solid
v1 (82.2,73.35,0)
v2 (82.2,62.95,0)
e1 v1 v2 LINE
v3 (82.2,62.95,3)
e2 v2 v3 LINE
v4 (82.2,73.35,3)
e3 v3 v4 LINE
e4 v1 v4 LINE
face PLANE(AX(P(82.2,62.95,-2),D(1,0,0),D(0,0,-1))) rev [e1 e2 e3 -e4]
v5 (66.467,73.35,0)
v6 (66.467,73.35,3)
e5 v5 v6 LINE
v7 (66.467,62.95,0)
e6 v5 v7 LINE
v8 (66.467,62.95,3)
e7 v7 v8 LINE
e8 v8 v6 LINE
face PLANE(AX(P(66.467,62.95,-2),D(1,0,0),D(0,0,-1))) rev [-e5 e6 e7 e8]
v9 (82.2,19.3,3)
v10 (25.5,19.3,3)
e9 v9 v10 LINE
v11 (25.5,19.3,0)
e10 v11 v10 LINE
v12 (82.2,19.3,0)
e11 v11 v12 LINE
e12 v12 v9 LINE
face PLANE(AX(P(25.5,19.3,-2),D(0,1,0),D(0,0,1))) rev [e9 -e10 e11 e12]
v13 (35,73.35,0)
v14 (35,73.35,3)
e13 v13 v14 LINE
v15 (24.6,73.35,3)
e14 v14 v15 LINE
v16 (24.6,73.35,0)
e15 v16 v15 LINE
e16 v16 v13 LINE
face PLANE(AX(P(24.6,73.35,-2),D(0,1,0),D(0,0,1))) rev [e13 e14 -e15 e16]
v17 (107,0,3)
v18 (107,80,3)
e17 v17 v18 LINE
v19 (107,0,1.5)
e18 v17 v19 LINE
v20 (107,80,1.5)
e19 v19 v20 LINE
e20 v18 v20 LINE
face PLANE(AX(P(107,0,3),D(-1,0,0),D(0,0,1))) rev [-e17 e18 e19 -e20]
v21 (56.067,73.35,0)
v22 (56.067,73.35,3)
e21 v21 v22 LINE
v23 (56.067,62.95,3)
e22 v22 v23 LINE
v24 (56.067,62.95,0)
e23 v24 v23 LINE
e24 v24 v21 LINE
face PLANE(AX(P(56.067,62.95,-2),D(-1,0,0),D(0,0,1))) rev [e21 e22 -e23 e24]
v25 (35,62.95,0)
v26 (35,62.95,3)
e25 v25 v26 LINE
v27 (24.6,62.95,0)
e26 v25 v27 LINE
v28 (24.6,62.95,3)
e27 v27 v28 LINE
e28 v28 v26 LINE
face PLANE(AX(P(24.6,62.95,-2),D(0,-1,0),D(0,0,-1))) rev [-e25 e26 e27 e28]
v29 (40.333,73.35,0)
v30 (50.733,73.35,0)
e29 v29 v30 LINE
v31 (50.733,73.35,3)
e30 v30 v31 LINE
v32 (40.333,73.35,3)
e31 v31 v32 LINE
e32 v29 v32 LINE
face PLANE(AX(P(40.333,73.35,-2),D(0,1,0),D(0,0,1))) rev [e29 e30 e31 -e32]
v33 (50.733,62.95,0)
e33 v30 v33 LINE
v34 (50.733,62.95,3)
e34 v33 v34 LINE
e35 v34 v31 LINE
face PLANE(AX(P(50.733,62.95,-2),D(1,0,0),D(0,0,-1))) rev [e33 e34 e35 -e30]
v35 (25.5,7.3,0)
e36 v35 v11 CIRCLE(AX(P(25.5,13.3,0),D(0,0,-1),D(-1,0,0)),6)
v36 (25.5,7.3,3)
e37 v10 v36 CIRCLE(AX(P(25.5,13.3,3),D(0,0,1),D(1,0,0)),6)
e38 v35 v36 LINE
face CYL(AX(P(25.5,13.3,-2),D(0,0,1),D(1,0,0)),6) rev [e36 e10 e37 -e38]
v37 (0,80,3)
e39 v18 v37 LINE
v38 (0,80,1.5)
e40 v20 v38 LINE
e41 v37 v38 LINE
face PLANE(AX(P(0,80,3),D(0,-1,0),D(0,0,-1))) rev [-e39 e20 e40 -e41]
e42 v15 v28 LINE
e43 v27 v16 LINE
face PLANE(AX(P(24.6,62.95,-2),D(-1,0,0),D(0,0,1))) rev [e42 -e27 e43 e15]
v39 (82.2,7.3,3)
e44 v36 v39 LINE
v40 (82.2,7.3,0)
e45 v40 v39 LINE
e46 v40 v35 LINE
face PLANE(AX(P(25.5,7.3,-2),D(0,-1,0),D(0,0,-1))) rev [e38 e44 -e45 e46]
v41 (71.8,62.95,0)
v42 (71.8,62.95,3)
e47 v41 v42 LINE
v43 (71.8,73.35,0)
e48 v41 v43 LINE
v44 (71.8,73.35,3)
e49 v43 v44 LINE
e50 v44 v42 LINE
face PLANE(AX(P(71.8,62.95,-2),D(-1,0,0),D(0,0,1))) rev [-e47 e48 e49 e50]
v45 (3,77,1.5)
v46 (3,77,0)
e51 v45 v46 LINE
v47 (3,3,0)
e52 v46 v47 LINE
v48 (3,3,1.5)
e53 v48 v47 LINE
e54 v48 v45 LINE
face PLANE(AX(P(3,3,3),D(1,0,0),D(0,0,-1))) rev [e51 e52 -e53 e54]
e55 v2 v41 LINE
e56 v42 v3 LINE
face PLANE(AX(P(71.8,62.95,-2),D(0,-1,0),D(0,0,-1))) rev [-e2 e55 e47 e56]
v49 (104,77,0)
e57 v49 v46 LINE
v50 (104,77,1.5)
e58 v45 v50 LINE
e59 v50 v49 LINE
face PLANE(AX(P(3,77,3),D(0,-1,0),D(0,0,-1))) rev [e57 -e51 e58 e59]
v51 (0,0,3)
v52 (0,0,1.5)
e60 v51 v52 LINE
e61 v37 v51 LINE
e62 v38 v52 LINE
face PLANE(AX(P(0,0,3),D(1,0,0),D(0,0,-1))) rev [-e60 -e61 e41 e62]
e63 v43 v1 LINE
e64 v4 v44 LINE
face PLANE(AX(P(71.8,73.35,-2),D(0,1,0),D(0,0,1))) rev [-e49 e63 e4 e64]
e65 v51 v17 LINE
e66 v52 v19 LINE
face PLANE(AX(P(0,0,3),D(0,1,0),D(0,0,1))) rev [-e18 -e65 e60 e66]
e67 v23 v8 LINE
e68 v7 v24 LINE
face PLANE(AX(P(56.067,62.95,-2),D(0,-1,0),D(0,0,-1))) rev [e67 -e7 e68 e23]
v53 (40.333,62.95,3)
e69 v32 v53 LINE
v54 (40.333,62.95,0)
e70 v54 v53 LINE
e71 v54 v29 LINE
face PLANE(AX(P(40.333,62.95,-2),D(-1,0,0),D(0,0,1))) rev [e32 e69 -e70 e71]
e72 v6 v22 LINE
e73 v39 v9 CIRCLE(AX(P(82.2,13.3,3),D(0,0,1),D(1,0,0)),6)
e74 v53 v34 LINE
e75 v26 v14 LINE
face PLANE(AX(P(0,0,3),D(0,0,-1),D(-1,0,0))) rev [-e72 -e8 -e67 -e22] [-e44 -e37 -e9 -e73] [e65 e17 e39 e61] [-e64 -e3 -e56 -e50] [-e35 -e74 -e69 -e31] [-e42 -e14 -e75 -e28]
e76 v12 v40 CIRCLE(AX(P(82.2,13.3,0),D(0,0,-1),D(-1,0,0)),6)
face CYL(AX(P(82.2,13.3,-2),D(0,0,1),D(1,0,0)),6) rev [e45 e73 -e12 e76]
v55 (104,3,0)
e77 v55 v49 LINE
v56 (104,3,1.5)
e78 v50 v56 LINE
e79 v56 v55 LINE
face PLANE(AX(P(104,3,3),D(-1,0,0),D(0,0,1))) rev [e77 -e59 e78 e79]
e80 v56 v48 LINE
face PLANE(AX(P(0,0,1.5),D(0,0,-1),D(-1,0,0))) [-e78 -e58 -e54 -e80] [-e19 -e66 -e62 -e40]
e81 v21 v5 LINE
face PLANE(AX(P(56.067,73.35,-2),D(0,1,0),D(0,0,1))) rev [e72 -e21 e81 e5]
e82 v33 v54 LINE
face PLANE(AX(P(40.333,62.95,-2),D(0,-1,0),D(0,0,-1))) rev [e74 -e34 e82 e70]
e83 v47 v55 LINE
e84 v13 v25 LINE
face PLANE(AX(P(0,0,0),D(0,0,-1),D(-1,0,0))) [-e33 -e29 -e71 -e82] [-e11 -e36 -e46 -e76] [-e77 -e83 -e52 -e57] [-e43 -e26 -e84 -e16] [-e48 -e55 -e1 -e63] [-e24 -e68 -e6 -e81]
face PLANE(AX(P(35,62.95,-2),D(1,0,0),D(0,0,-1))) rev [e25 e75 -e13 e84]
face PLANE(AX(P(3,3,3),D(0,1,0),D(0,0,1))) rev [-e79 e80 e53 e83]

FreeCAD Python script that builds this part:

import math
import FreeCAD as App
import Part
import Sketcher
Q = App.Units.Quantity

doc = App.newDocument("Part")
body = doc.addObject("PartDesign::Body", "Body")

sketch1 = body.newObject("Sketcher::SketchObject", "Sketch")
sketch1.AttachmentSupport = (doc.getObject("XY_Plane"), [""])
sketch1.MapMode = "FlatFace"
sketch1.addGeometry([
    Part.LineSegment(App.Vector(3, 77, 0), App.Vector(3, 3, 0)),
    Part.LineSegment(App.Vector(3, 3, 0), App.Vector(104, 3, 0)),
    Part.LineSegment(App.Vector(104, 3, 0), App.Vector(104, 77, 0)),
    Part.LineSegment(App.Vector(104, 77, 0), App.Vector(3, 77, 0)),
], False)
sketch1.addConstraint([
    Sketcher.Constraint("Coincident", 0, 2, 1, 1),
    Sketcher.Constraint("Coincident", 1, 2, 2, 1),
    Sketcher.Constraint("Coincident", 2, 2, 3, 1),
    Sketcher.Constraint("Coincident", 3, 2, 0, 1),
    Sketcher.Constraint("Vertical", 0),
    Sketcher.Constraint("Horizontal", 1),
    Sketcher.Constraint("Vertical", 2),
    Sketcher.Constraint("Horizontal", 3),
    Sketcher.Constraint("DistanceX", 1, 1, 1, 2, Q("101 mm")),
    Sketcher.Constraint("DistanceY", 0, 2, 0, 1, Q("74 mm")),
    Sketcher.Constraint("DistanceX", -1, 1, 0, 2, Q("3 mm")),
    Sketcher.Constraint("DistanceY", -1, 1, 0, 2, Q("3 mm")),
])
pad1 = body.newObject("PartDesign::Pad", "Pad")
pad1.Profile = sketch1
pad1.Length = 3

sketch2 = body.newObject("Sketcher::SketchObject", "Sketch001")
sketch2.AttachmentSupport = (doc.getObject("XY_Plane"), [""])
sketch2.MapMode = "FlatFace"
sketch2.AttachmentOffset = App.Placement(App.Vector(0, 0, 1.5), App.Rotation())
sketch2.addGeometry([
    Part.LineSegment(App.Vector(0, 80, 0), App.Vector(0, 0, 0)),
    Part.LineSegment(App.Vector(0, 0, 0), App.Vector(107, 0, 0)),
    Part.LineSegment(App.Vector(107, 0, 0), App.Vector(107, 80, 0)),
    Part.LineSegment(App.Vector(107, 80, 0), App.Vector(0, 80, 0)),
], False)
sketch2.addConstraint([
    Sketcher.Constraint("Coincident", 0, 2, 1, 1),
    Sketcher.Constraint("Coincident", 1, 2, 2, 1),
    Sketcher.Constraint("Coincident", 2, 2, 3, 1),
    Sketcher.Constraint("Coincident", 3, 2, 0, 1),
    Sketcher.Constraint("Vertical", 0),
    Sketcher.Constraint("Horizontal", 1),
    Sketcher.Constraint("Vertical", 2),
    Sketcher.Constraint("Horizontal", 3),
    Sketcher.Constraint("Coincident", 0, 2, -1, 1),
    Sketcher.Constraint("DistanceX", 1, 1, 1, 2, Q("107 mm")),
    Sketcher.Constraint("DistanceY", 0, 2, 0, 1, Q("80 mm")),
])
pad2 = body.newObject("PartDesign::Pad", "Pad001")
pad2.Profile = sketch2
pad2.Length = 1.5

sketch3 = body.newObject("Sketcher::SketchObject", "Sketch002")
sketch3.AttachmentSupport = (doc.getObject("XY_Plane"), [""])
sketch3.MapMode = "FlatFace"
sketch3.AttachmentOffset = App.Placement(App.Vector(0, 0, 3), App.Rotation())
sketch3.addGeometry([
    Part.LineSegment(App.Vector(24.6, 73.35, 0), App.Vector(24.6, 62.95, 0)),
    Part.LineSegment(App.Vector(24.6, 62.95, 0), App.Vector(35, 62.95, 0)),
    Part.LineSegment(App.Vector(35, 62.95, 0), App.Vector(35, 73.35, 0)),
    Part.LineSegment(App.Vector(35, 73.35, 0), App.Vector(24.6, 73.35, 0)),
    Part.LineSegment(App.Vector(40.333, 73.35, 0), App.Vector(40.333, 62.95, 0)),
    Part.LineSegment(App.Vector(40.333, 62.95, 0), App.Vector(50.733, 62.95, 0)),
    Part.LineSegment(App.Vector(50.733, 62.95, 0), App.Vector(50.733, 73.35, 0)),
    Part.LineSegment(App.Vector(50.733, 73.35, 0), App.Vector(40.333, 73.35, 0)),
    Part.LineSegment(App.Vector(56.067, 73.35, 0), App.Vector(56.067, 62.95, 0)),
    Part.LineSegment(App.Vector(56.067, 62.95, 0), App.Vector(66.467, 62.95, 0)),
    Part.LineSegment(App.Vector(66.467, 62.95, 0), App.Vector(66.467, 73.35, 0)),
    Part.LineSegment(App.Vector(66.467, 73.35, 0), App.Vector(56.067, 73.35, 0)),
    Part.LineSegment(App.Vector(71.8, 73.35, 0), App.Vector(71.8, 62.95, 0)),
    Part.LineSegment(App.Vector(71.8, 62.95, 0), App.Vector(82.2, 62.95, 0)),
    Part.LineSegment(App.Vector(82.2, 62.95, 0), App.Vector(82.2, 73.35, 0)),
    Part.LineSegment(App.Vector(82.2, 73.35, 0), App.Vector(71.8, 73.35, 0)),
    Part.LineSegment(App.Vector(82.2, 19.3, 0), App.Vector(25.5, 19.3, 0)),
    Part.ArcOfCircle(Part.Circle(App.Vector(25.5, 13.3, 0), App.Vector(0, 0, 1), 6), math.radians(90), math.radians(270)),
    Part.LineSegment(App.Vector(25.5, 7.3, 0), App.Vector(82.2, 7.3, 0)),
    Part.ArcOfCircle(Part.Circle(App.Vector(82.2, 13.3, 0), App.Vector(0, 0, 1), 6), math.radians(-90), math.radians(90)),
], False)
sketch3.addConstraint([
    Sketcher.Constraint("Coincident", 0, 2, 1, 1),
    Sketcher.Constraint("Coincident", 1, 2, 2, 1),
    Sketcher.Constraint("Coincident", 2, 2, 3, 1),
    Sketcher.Constraint("Coincident", 3, 2, 0, 1),
    Sketcher.Constraint("Coincident", 4, 2, 5, 1),
    Sketcher.Constraint("Coincident", 5, 2, 6, 1),
    Sketcher.Constraint("Coincident", 6, 2, 7, 1),
    Sketcher.Constraint("Coincident", 7, 2, 4, 1),
    Sketcher.Constraint("Coincident", 8, 2, 9, 1),
    Sketcher.Constraint("Coincident", 9, 2, 10, 1),
    Sketcher.Constraint("Coincident", 10, 2, 11, 1),
    Sketcher.Constraint("Coincident", 11, 2, 8, 1),
    Sketcher.Constraint("Coincident", 12, 2, 13, 1),
    Sketcher.Constraint("Coincident", 13, 2, 14, 1),
    Sketcher.Constraint("Coincident", 14, 2, 15, 1),
    Sketcher.Constraint("Coincident", 15, 2, 12, 1),
    Sketcher.Constraint("Tangent", 16, 2, 17, 1),
    Sketcher.Constraint("Tangent", 17, 2, 18, 1),
    Sketcher.Constraint("Tangent", 18, 2, 19, 1),
    Sketcher.Constraint("Tangent", 19, 2, 16, 1),
    Sketcher.Constraint("Vertical", 0),
    Sketcher.Constraint("Horizontal", 1),
    Sketcher.Constraint("Vertical", 2),
    Sketcher.Constraint("Horizontal", 3),
    Sketcher.Constraint("Vertical", 4),
    Sketcher.Constraint("Horizontal", 5),
    Sketcher.Constraint("Vertical", 6),
    Sketcher.Constraint("Horizontal", 7),
    Sketcher.Constraint("Vertical", 8),
    Sketcher.Constraint("Horizontal", 9),
    Sketcher.Constraint("Vertical", 10),
    Sketcher.Constraint("Horizontal", 11),
    Sketcher.Constraint("Vertical", 12),
    Sketcher.Constraint("Horizontal", 13),
    Sketcher.Constraint("Vertical", 14),
    Sketcher.Constraint("Horizontal", 15),
    Sketcher.Constraint("Horizontal", 16),
    Sketcher.Constraint("Horizontal", 18),
    Sketcher.Constraint("Horizontal", 1, 2, 4, 2),
    Sketcher.Constraint("Horizontal", 3, 2, 6, 2),
    Sketcher.Constraint("Horizontal", 5, 2, 8, 2),
    Sketcher.Constraint("Horizontal", 7, 2, 10, 2),
    Sketcher.Constraint("Horizontal", 9, 2, 12, 2),
    Sketcher.Constraint("Horizontal", 11, 2, 14, 2),
    Sketcher.Constraint("Vertical", 19, 3, 13, 2),
    Sketcher.Constraint("Equal", 3, 5),
    Sketcher.Constraint("Equal", 7, 9),
    Sketcher.Constraint("Equal", 11, 13),
    Sketcher.Constraint("Equal", 15, 0),
    Sketcher.Constraint("Radius", 17, Q("6 mm")),
    Sketcher.Constraint("DistanceX", 1, 1, 1, 2, Q("10.4 mm")),
    Sketcher.Constraint("DistanceX", 16, 2, 16, 1, Q("56.7 mm")),
    Sketcher.Constraint("DistanceX", -1, 1, 1, 2, Q("35 mm")),
    Sketcher.Constraint("DistanceX", -1, 1, 17, 3, Q("25.5 mm")),
    Sketcher.Constraint("DistanceY", -1, 1, 17, 3, Q("13.3 mm")),
    Sketcher.Constraint("DistanceY", -1, 1, 0, 2, Q("62.95 mm")),
    Sketcher.Constraint("DistanceX", -1, 1, 4, 2, Q("40.333 mm")),
    Sketcher.Constraint("DistanceX", -1, 1, 8, 2, Q("56.067 mm")),
])
pocket1 = body.newObject("PartDesign::Pocket", "Pocket")
pocket1.Profile = sketch3
pocket1.Length = 5

doc.recompute()
